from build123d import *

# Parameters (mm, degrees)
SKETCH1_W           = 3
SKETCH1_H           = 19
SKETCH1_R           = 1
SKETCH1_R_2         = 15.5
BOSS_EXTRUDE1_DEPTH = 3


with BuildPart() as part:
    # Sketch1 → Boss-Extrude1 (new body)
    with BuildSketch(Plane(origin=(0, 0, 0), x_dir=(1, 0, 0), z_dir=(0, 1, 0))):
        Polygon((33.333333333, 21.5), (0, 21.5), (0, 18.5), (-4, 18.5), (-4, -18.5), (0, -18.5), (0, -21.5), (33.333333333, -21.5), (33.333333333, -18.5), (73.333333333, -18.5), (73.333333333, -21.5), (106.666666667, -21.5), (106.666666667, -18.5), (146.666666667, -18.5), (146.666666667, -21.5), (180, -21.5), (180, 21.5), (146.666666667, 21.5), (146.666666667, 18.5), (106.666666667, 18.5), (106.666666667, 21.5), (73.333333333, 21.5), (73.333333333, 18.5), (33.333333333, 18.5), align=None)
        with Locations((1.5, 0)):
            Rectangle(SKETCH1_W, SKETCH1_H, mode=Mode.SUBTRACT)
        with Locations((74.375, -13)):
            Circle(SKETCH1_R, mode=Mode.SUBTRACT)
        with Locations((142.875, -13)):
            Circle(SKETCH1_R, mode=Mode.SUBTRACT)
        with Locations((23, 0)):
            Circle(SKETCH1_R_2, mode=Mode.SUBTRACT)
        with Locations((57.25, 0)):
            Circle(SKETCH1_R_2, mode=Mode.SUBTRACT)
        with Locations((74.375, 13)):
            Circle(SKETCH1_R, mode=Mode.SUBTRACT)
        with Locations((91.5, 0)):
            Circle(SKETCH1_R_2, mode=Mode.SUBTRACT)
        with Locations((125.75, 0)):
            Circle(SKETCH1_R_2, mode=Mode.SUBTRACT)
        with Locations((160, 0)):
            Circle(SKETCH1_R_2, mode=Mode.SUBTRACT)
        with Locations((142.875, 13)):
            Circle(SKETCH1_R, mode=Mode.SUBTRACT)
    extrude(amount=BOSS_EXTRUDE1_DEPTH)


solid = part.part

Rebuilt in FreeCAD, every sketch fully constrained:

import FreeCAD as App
import Part
import Sketcher
from FreeCAD import Vector
Q = App.Units.Quantity

doc = App.newDocument("Part")
body = doc.addObject("PartDesign::Body", "Body")

# Sketch on XZ plane
sketch1 = doc.addObject("Sketcher::SketchObject", "Sketch")
body.addObject(sketch1)
sketch1.AttachmentSupport = (doc.XZ_Plane, [""])
sketch1.MapMode = "FlatFace"
sketch1.addGeometry(Part.LineSegment(Vector(33.3, -21.5, 0), Vector(0, -21.5, 0)), False)
sketch1.addGeometry(Part.LineSegment(Vector(0, -21.5, 0), Vector(0, -18.5, 0)), False)
sketch1.addGeometry(Part.LineSegment(Vector(0, -18.5, 0), Vector(-4, -18.5, 0)), False)
sketch1.addGeometry(Part.LineSegment(Vector(-4, -18.5, 0), Vector(-4, 18.5, 0)), False)
sketch1.addGeometry(Part.LineSegment(Vector(-4, 18.5, 0), Vector(0, 18.5, 0)), False)
sketch1.addGeometry(Part.LineSegment(Vector(0, 18.5, 0), Vector(0, 21.5, 0)), False)
sketch1.addGeometry(Part.LineSegment(Vector(0, 21.5, 0), Vector(33.3, 21.5, 0)), False)
sketch1.addGeometry(Part.LineSegment(Vector(33.3, 21.5, 0), Vector(33.3, 18.5, 0)), False)
sketch1.addGeometry(Part.LineSegment(Vector(33.3, 18.5, 0), Vector(73.3, 18.5, 0)), False)
sketch1.addGeometry(Part.LineSegment(Vector(73.3, 18.5, 0), Vector(73.3, 21.5, 0)), False)
sketch1.addGeometry(Part.LineSegment(Vector(73.3, 21.5, 0), Vector(106.7, 21.5, 0)), False)
sketch1.addGeometry(Part.LineSegment(Vector(106.7, 21.5, 0), Vector(106.7, 18.5, 0)), False)
sketch1.addGeometry(Part.LineSegment(Vector(106.7, 18.5, 0), Vector(146.7, 18.5, 0)), False)
sketch1.addGeometry(Part.LineSegment(Vector(146.7, 18.5, 0), Vector(146.7, 21.5, 0)), False)
sketch1.addGeometry(Part.LineSegment(Vector(146.7, 21.5, 0), Vector(180, 21.5, 0)), False)
sketch1.addGeometry(Part.LineSegment(Vector(180, 21.5, 0), Vector(180, -21.5, 0)), False)
sketch1.addGeometry(Part.LineSegment(Vector(180, -21.5, 0), Vector(146.7, -21.5, 0)), False)
sketch1.addGeometry(Part.LineSegment(Vector(146.7, -21.5, 0), Vector(146.7, -18.5, 0)), False)
sketch1.addGeometry(Part.LineSegment(Vector(146.7, -18.5, 0), Vector(106.7, -18.5, 0)), False)
sketch1.addGeometry(Part.LineSegment(Vector(106.7, -18.5, 0), Vector(106.7, -21.5, 0)), False)
sketch1.addGeometry(Part.LineSegment(Vector(106.7, -21.5, 0), Vector(73.3, -21.5, 0)), False)
sketch1.addGeometry(Part.LineSegment(Vector(73.3, -21.5, 0), Vector(73.3, -18.5, 0)), False)
sketch1.addGeometry(Part.LineSegment(Vector(73.3, -18.5, 0), Vector(33.3, -18.5, 0)), False)
sketch1.addGeometry(Part.LineSegment(Vector(33.3, -18.5, 0), Vector(33.3, -21.5, 0)), False)
sketch1.addGeometry(Part.Circle(Vector(74.4, 13, 0), Vector(0, 0, 1), 1), False)
sketch1.addGeometry(Part.Circle(Vector(142.9, 13, 0), Vector(0, 0, 1), 1), False)
sketch1.addGeometry(Part.LineSegment(Vector(3, 9.5, 0), Vector(0, 9.5, 0)), False)
sketch1.addGeometry(Part.LineSegment(Vector(0, 9.5, 0), Vector(0, -9.5, 0)), False)
sketch1.addGeometry(Part.LineSegment(Vector(0, -9.5, 0), Vector(3, -9.5, 0)), False)
sketch1.addGeometry(Part.LineSegment(Vector(3, -9.5, 0), Vector(3, 9.5, 0)), False)
sketch1.addGeometry(Part.Circle(Vector(23, 0, 0), Vector(0, 0, 1), 15.5), False)
sketch1.addGeometry(Part.Circle(Vector(57.2, 0, 0), Vector(0, 0, 1), 15.5), False)
sketch1.addGeometry(Part.Circle(Vector(74.4, -13, 0), Vector(0, 0, 1), 1), False)
sketch1.addGeometry(Part.Circle(Vector(91.5, 0, 0), Vector(0, 0, 1), 15.5), False)
sketch1.addGeometry(Part.Circle(Vector(125.8, 0, 0), Vector(0, 0, 1), 15.5), False)
sketch1.addGeometry(Part.Circle(Vector(160, 0, 0), Vector(0, 0, 1), 15.5), False)
sketch1.addGeometry(Part.Circle(Vector(142.9, -13, 0), Vector(0, 0, 1), 1), False)
sketch1.addConstraint(Sketcher.Constraint("Coincident", 0, 2, 1, 1))
sketch1.addConstraint(Sketcher.Constraint("Coincident", 1, 2, 2, 1))
sketch1.addConstraint(Sketcher.Constraint("Coincident", 2, 2, 3, 1))
sketch1.addConstraint(Sketcher.Constraint("Coincident", 3, 2, 4, 1))
sketch1.addConstraint(Sketcher.Constraint("Coincident", 4, 2, 5, 1))
sketch1.addConstraint(Sketcher.Constraint("Coincident", 5, 2, 6, 1))
sketch1.addConstraint(Sketcher.Constraint("Coincident", 6, 2, 7, 1))
sketch1.addConstraint(Sketcher.Constraint("Coincident", 7, 2, 8, 1))
sketch1.addConstraint(Sketcher.Constraint("Coincident", 8, 2, 9, 1))
sketch1.addConstraint(Sketcher.Constraint("Coincident", 9, 2, 10, 1))
sketch1.addConstraint(Sketcher.Constraint("Coincident", 10, 2, 11, 1))
sketch1.addConstraint(Sketcher.Constraint("Coincident", 11, 2, 12, 1))
sketch1.addConstraint(Sketcher.Constraint("Coincident", 12, 2, 13, 1))
sketch1.addConstraint(Sketcher.Constraint("Coincident", 13, 2, 14, 1))
sketch1.addConstraint(Sketcher.Constraint("Coincident", 14, 2, 15, 1))
sketch1.addConstraint(Sketcher.Constraint("Coincident", 15, 2, 16, 1))
sketch1.addConstraint(Sketcher.Constraint("Coincident", 16, 2, 17, 1))
sketch1.addConstraint(Sketcher.Constraint("Coincident", 17, 2, 18, 1))
sketch1.addConstraint(Sketcher.Constraint("Coincident", 18, 2, 19, 1))
sketch1.addConstraint(Sketcher.Constraint("Coincident", 19, 2, 20, 1))
sketch1.addConstraint(Sketcher.Constraint("Coincident", 20, 2, 21, 1))
sketch1.addConstraint(Sketcher.Constraint("Coincident", 21, 2, 22, 1))
sketch1.addConstraint(Sketcher.Constraint("Coincident", 22, 2, 23, 1))
sketch1.addConstraint(Sketcher.Constraint("Coincident", 23, 2, 0, 1))
sketch1.addConstraint(Sketcher.Constraint("Coincident", 26, 2, 27, 1))
sketch1.addConstraint(Sketcher.Constraint("Coincident", 27, 2, 28, 1))
sketch1.addConstraint(Sketcher.Constraint("Coincident", 28, 2, 29, 1))
sketch1.addConstraint(Sketcher.Constraint("Coincident", 29, 2, 26, 1))
sketch1.addConstraint(Sketcher.Constraint("Horizontal", 0))
sketch1.addConstraint(Sketcher.Constraint("Vertical", 1))
sketch1.addConstraint(Sketcher.Constraint("Horizontal", 2))
sketch1.addConstraint(Sketcher.Constraint("Vertical", 3))
sketch1.addConstraint(Sketcher.Constraint("Horizontal", 4))
sketch1.addConstraint(Sketcher.Constraint("Vertical", 5))
sketch1.addConstraint(Sketcher.Constraint("Horizontal", 6))
sketch1.addConstraint(Sketcher.Constraint("Vertical", 7))
sketch1.addConstraint(Sketcher.Constraint("Horizontal", 8))
sketch1.addConstraint(Sketcher.Constraint("Vertical", 9))
sketch1.addConstraint(Sketcher.Constraint("Horizontal", 10))
sketch1.addConstraint(Sketcher.Constraint("Vertical", 11))
sketch1.addConstraint(Sketcher.Constraint("Horizontal", 12))
sketch1.addConstraint(Sketcher.Constraint("Vertical", 13))
sketch1.addConstraint(Sketcher.Constraint("Horizontal", 14))
sketch1.addConstraint(Sketcher.Constraint("Vertical", 15))
sketch1.addConstraint(Sketcher.Constraint("Horizontal", 16))
sketch1.addConstraint(Sketcher.Constraint("Vertical", 17))
sketch1.addConstraint(Sketcher.Constraint("Horizontal", 18))
sketch1.addConstraint(Sketcher.Constraint("Vertical", 19))
sketch1.addConstraint(Sketcher.Constraint("Horizontal", 20))
sketch1.addConstraint(Sketcher.Constraint("Vertical", 21))
sketch1.addConstraint(Sketcher.Constraint("Horizontal", 22))
sketch1.addConstraint(Sketcher.Constraint("Vertical", 23))
sketch1.addConstraint(Sketcher.Constraint("Horizontal", 26))
sketch1.addConstraint(Sketcher.Constraint("Vertical", 27))
sketch1.addConstraint(Sketcher.Constraint("Horizontal", 28))
sketch1.addConstraint(Sketcher.Constraint("Vertical", 29))
sketch1.addConstraint(Sketcher.Constraint("Equal", 24, 25))
sketch1.addConstraint(Sketcher.Constraint("Equal", 30, 31))
sketch1.addConstraint(Sketcher.Constraint("Equal", 25, 32))
sketch1.addConstraint(Sketcher.Constraint("Equal", 31, 33))
sketch1.addConstraint(Sketcher.Constraint("Equal", 33, 34))
sketch1.addConstraint(Sketcher.Constraint("Equal", 34, 35))
sketch1.addConstraint(Sketcher.Constraint("Equal", 32, 36))
sketch1.addConstraint(Sketcher.Constraint("Symmetric", 1, 2, 4, 2, -1, 1))
sketch1.addConstraint(Sketcher.Constraint("Symmetric", 26, 2, 27, 2, -1, 1))
sketch1.addConstraint(Sketcher.Constraint("Symmetric", 24, 3, 32, 3, -1))
sketch1.addConstraint(Sketcher.Constraint("Symmetric", 25, 3, 36, 3, -1))
sketch1.addConstraint(Sketcher.Constraint("Symmetric", 0, 2, 5, 2, -1))
sketch1.addConstraint(Sketcher.Constraint("Symmetric", 13, 2, 16, 2, -1))
sketch1.addConstraint(Sketcher.Constraint("Symmetric", 11, 2, 18, 2, -1))
sketch1.addConstraint(Sketcher.Constraint("Symmetric", 9, 2, 20, 2, -1))
sketch1.addConstraint(Sketcher.Constraint("Symmetric", 7, 2, 22, 2, -1))
sketch1.addConstraint(Sketcher.Constraint("PointOnObject", 30, 3, -1))
sketch1.addConstraint(Sketcher.Constraint("PointOnObject", 31, 3, -1))
sketch1.addConstraint(Sketcher.Constraint("PointOnObject", 33, 3, -1))
sketch1.addConstraint(Sketcher.Constraint("PointOnObject", 34, 3, -1))
sketch1.addConstraint(Sketcher.Constraint("PointOnObject", 35, 3, -1))
sketch1.addConstraint(Sketcher.Constraint("Horizontal", 24, 3, 25, 3))
sketch1.addConstraint(Sketcher.Constraint("Horizontal", 4, 2, 7, 2))
sketch1.addConstraint(Sketcher.Constraint("Horizontal", 6, 2, 9, 2))
sketch1.addConstraint(Sketcher.Constraint("Horizontal", 8, 2, 11, 2))
sketch1.addConstraint(Sketcher.Constraint("Horizontal", 10, 2, 13, 2))
sketch1.addConstraint(Sketcher.Constraint("Equal", 6, 10))
sketch1.addConstraint(Sketcher.Constraint("Equal", 8, 12))
sketch1.addConstraint(Sketcher.Constraint("Equal", 10, 14))
sketch1.addConstraint(Sketcher.Constraint("Equal", 28, 1))
sketch1.addConstraint(Sketcher.Constraint("Diameter", 24, Q("2 mm")))
sketch1.addConstraint(Sketcher.Constraint("Diameter", 30, Q("31 mm")))
sketch1.addConstraint(Sketcher.Constraint("DistanceX", 2, 2, 2, 1, Q("4 mm")))
sketch1.addConstraint(Sketcher.Constraint("DistanceX", 8, 1, 8, 2, Q("40 mm")))
sketch1.addConstraint(Sketcher.Constraint("DistanceX", 26, 2, 26, 1, Q("3 mm")))
sketch1.addConstraint(Sketcher.Constraint("DistanceY", 3, 1, 3, 2, Q("37 mm")))
sketch1.addConstraint(Sketcher.Constraint("DistanceY", 27, 2, 27, 1, Q("19 mm")))
sketch1.addConstraint(Sketcher.Constraint("DistanceY", -1, 1, 24, 3, Q("13 mm")))
sketch1.addConstraint(Sketcher.Constraint("DistanceX", -1, 1, 30, 3, Q("23 mm")))
sketch1.addConstraint(Sketcher.Constraint("DistanceX", -1, 1, 35, 3, Q("160 mm")))
sketch1.addConstraint(Sketcher.Constraint("DistanceX", -1, 1, 14, 2, Q("180 mm")))
sketch1.addConstraint(Sketcher.Constraint("DistanceX", -1, 1, 33, 3, Q("91.5 mm")))
sketch1.addConstraint(Sketcher.Constraint("DistanceX", 24, 3, 25, 3, Q("68.5 mm")))
sketch1.addConstraint(Sketcher.Constraint("DistanceX", 31, 3, 34, 3, Q("68.5 mm")))
sketch1.addConstraint(Sketcher.Constraint("DistanceX", -1, 1, 31, 3, Q("57.25 mm")))
sketch1.addConstraint(Sketcher.Constraint("DistanceX", -1, 1, 24, 3, Q("74.375 mm")))
pad1 = doc.addObject("PartDesign::Pad", "Pad")
body.addObject(pad1)
pad1.Profile = sketch1
pad1.Length = 3
pad1.Reversed = True

doc.recompute()
